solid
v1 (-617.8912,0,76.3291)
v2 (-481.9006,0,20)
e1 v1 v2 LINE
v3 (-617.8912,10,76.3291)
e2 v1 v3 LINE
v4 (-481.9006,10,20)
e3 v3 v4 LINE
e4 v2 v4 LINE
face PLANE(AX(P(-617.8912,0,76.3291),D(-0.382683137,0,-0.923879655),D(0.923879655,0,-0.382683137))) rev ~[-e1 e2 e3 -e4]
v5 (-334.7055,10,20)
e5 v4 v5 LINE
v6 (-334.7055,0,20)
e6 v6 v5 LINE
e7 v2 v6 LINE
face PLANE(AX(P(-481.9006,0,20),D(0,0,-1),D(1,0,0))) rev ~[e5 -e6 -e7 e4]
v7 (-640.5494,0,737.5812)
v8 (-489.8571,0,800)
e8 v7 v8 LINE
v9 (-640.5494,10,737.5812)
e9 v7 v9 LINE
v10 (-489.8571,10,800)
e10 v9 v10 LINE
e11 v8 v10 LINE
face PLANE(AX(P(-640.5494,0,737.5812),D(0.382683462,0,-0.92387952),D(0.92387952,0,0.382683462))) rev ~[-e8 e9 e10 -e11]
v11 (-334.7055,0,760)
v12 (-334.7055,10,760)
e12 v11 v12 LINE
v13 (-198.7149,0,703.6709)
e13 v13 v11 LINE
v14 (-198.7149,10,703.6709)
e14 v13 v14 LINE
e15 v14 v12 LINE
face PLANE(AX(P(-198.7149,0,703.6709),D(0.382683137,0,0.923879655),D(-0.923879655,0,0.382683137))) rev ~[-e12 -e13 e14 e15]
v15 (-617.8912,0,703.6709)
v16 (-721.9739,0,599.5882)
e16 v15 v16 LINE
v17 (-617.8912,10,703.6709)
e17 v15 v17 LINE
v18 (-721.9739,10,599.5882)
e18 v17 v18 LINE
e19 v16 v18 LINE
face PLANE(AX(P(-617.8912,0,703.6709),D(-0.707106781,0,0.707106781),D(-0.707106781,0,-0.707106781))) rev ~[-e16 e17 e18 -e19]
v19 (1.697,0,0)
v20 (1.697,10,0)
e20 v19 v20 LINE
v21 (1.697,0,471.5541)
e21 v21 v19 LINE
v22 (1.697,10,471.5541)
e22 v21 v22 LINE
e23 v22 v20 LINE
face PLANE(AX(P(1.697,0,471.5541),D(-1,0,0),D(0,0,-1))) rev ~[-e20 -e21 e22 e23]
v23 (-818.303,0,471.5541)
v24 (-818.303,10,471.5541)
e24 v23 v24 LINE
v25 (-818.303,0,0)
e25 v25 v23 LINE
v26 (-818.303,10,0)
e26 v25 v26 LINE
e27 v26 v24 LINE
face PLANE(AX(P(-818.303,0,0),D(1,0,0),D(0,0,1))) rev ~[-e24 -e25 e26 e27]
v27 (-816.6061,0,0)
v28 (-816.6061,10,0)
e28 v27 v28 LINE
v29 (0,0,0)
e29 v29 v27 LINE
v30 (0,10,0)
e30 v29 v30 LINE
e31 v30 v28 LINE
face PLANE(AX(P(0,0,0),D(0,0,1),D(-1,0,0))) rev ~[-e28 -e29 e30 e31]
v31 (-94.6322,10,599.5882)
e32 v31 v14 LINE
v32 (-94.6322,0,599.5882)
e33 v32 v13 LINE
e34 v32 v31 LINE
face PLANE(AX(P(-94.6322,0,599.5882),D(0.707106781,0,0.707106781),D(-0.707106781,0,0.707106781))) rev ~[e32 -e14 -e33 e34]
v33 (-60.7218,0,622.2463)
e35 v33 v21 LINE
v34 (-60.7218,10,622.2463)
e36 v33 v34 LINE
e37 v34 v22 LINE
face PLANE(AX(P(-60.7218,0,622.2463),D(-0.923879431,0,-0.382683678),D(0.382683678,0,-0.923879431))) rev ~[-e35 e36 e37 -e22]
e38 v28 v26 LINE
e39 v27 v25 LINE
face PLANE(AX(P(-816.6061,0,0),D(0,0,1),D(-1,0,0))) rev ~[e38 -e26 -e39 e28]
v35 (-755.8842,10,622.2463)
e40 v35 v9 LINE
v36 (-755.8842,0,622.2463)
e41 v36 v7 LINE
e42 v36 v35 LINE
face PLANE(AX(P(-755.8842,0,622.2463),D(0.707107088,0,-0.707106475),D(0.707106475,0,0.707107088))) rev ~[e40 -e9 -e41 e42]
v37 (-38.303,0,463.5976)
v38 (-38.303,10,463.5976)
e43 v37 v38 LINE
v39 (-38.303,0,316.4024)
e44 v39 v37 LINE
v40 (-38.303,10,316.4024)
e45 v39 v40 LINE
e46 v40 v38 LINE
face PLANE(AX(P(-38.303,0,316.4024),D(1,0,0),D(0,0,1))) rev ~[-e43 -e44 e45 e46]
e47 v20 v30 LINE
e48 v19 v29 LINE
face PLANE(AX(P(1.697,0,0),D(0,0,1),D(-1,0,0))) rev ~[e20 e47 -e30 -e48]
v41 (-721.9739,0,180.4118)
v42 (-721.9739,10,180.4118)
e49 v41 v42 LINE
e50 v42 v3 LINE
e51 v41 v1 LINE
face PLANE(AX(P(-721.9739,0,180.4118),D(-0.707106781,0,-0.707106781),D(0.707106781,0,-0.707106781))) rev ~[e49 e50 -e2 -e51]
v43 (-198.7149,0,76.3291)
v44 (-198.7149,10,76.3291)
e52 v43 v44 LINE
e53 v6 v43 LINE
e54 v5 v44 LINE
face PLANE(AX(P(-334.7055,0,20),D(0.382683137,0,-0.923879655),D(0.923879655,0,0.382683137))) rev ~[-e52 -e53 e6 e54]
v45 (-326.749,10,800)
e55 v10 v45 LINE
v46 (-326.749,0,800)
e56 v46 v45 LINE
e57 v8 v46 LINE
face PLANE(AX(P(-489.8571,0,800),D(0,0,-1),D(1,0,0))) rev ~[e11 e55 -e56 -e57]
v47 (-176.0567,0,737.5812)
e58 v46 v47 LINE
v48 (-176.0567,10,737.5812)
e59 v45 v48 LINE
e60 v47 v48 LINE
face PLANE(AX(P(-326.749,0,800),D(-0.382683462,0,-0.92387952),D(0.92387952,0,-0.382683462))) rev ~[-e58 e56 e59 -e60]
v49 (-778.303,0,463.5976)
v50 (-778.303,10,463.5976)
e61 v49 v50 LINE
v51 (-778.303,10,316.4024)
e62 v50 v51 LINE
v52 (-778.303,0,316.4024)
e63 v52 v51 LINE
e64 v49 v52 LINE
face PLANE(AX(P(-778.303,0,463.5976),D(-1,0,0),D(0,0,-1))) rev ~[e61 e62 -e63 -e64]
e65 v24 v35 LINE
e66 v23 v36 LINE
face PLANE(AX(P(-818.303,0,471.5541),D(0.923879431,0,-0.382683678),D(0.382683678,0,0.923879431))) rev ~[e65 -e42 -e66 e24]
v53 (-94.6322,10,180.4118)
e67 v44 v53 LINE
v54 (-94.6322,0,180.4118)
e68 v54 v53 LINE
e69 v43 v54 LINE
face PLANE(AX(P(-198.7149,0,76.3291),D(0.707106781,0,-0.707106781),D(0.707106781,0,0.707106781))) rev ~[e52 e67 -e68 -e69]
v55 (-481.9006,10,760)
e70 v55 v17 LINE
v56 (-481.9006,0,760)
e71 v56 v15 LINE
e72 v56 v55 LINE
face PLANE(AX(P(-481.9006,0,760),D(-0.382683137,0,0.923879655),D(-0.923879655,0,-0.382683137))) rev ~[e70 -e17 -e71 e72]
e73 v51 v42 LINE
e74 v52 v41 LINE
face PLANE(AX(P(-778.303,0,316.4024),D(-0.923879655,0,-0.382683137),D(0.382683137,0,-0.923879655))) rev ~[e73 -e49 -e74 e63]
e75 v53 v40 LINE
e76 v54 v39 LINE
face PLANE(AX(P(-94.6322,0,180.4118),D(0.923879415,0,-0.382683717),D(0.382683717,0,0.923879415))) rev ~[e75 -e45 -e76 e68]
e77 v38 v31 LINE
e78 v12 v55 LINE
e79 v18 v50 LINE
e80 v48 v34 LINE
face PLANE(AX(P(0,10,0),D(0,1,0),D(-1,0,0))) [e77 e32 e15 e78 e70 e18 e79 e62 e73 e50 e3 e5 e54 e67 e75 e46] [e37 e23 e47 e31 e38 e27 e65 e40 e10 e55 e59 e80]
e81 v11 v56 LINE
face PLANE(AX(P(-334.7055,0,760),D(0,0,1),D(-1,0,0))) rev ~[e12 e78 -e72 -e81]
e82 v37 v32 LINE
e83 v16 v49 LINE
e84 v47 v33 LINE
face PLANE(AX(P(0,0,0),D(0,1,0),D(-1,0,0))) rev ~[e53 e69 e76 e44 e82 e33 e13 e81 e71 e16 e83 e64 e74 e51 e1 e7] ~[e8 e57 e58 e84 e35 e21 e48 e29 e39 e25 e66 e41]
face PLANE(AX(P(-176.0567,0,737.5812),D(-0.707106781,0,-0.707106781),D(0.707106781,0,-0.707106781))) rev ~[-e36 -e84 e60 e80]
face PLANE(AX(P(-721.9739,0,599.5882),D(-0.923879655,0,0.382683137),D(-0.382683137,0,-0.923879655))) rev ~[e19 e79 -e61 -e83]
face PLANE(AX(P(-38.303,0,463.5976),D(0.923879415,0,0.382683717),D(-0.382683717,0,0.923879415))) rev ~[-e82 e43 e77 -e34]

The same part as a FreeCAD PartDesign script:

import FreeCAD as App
import Part
import Sketcher

V = App.Vector
Q = App.Units.Quantity

doc = App.newDocument("Part")
body = doc.addObject("PartDesign::Body", "Body")

# Sketch on XZ plane
sketch1 = body.newObject("Sketcher::SketchObject", "Sketch")
sketch1.AttachmentSupport = (doc.getObject("XZ_Plane"), [""])
sketch1.MapMode = "FlatFace"
sketch1.addGeometry([
    Part.LineSegment(V(-490, 800, 0), V(-327, 800, 0)),  # 0
    Part.LineSegment(V(-327, 800, 0), V(-176, 738, 0)),  # 1
    Part.LineSegment(V(-176, 738, 0), V(-61, 622, 0)),  # 2
    Part.LineSegment(V(-61, 622, 0), V(2, 472, 0)),  # 3
    Part.LineSegment(V(2, 472, 0), V(2, 0, 0)),  # 4
    Part.LineSegment(V(2, 0, 0), V(-818, 0, 0)),  # 5
    Part.LineSegment(V(-818, 0, 0), V(-818, 472, 0)),  # 6
    Part.LineSegment(V(-818, 472, 0), V(-756, 622, 0)),  # 7
    Part.LineSegment(V(-756, 622, 0), V(-641, 738, 0)),  # 8
    Part.LineSegment(V(-641, 738, 0), V(-490, 800, 0)),  # 9
    Part.LineSegment(V(-722, 180, 0), V(-618, 76, 0)),  # 10
    Part.LineSegment(V(-618, 76, 0), V(-482, 20, 0)),  # 11
    Part.LineSegment(V(-482, 20, 0), V(-335, 20, 0)),  # 12
    Part.LineSegment(V(-335, 20, 0), V(-199, 76, 0)),  # 13
    Part.LineSegment(V(-199, 76, 0), V(-95, 180, 0)),  # 14
    Part.LineSegment(V(-95, 180, 0), V(-38, 316, 0)),  # 15
    Part.LineSegment(V(-38, 316, 0), V(-38, 464, 0)),  # 16
    Part.LineSegment(V(-38, 464, 0), V(-95, 600, 0)),  # 17
    Part.LineSegment(V(-95, 600, 0), V(-199, 704, 0)),  # 18
    Part.LineSegment(V(-199, 704, 0), V(-335, 760, 0)),  # 19
    Part.LineSegment(V(-335, 760, 0), V(-482, 760, 0)),  # 20
    Part.LineSegment(V(-482, 760, 0), V(-618, 704, 0)),  # 21
    Part.LineSegment(V(-618, 704, 0), V(-722, 600, 0)),  # 22
    Part.LineSegment(V(-722, 600, 0), V(-778, 464, 0)),  # 23
    Part.LineSegment(V(-778, 464, 0), V(-778, 316, 0)),  # 24
    Part.LineSegment(V(-778, 316, 0), V(-722, 180, 0)),  # 25
], False)
sketch1.addConstraint([
    Sketcher.Constraint("Coincident", 0, 2, 1, 1),
    Sketcher.Constraint("Coincident", 1, 2, 2, 1),
    Sketcher.Constraint("Coincident", 2, 2, 3, 1),
    Sketcher.Constraint("Coincident", 3, 2, 4, 1),
    Sketcher.Constraint("Coincident", 4, 2, 5, 1),
    Sketcher.Constraint("Coincident", 5, 2, 6, 1),
    Sketcher.Constraint("Coincident", 6, 2, 7, 1),
    Sketcher.Constraint("Coincident", 7, 2, 8, 1),
    Sketcher.Constraint("Coincident", 8, 2, 9, 1),
    Sketcher.Constraint("Coincident", 9, 2, 0, 1),
    Sketcher.Constraint("Coincident", 10, 2, 11, 1),
    Sketcher.Constraint("Coincident", 11, 2, 12, 1),
    Sketcher.Constraint("Coincident", 12, 2, 13, 1),
    Sketcher.Constraint("Coincident", 13, 2, 14, 1),
    Sketcher.Constraint("Coincident", 14, 2, 15, 1),
    Sketcher.Constraint("Coincident", 15, 2, 16, 1),
    Sketcher.Constraint("Coincident", 16, 2, 17, 1),
    Sketcher.Constraint("Coincident", 17, 2, 18, 1),
    Sketcher.Constraint("Coincident", 18, 2, 19, 1),
    Sketcher.Constraint("Coincident", 19, 2, 20, 1),
    Sketcher.Constraint("Coincident", 20, 2, 21, 1),
    Sketcher.Constraint("Coincident", 21, 2, 22, 1),
    Sketcher.Constraint("Coincident", 22, 2, 23, 1),
    Sketcher.Constraint("Coincident", 23, 2, 24, 1),
    Sketcher.Constraint("Coincident", 24, 2, 25, 1),
    Sketcher.Constraint("Coincident", 25, 2, 10, 1),
    Sketcher.Constraint("Horizontal", 0),
    Sketcher.Constraint("Vertical", 4),
    Sketcher.Constraint("Horizontal", 5),
    Sketcher.Constraint("Vertical", 6),
    Sketcher.Constraint("Horizontal", 12),
    Sketcher.Constraint("Vertical", 16),
    Sketcher.Constraint("Horizontal", 20),
    Sketcher.Constraint("Vertical", 24),
    Sketcher.Constraint("PointOnObject", 4, 2, -1),
    Sketcher.Constraint("Perpendicular", 1, 7),
    Sketcher.Constraint("Perpendicular", 2, 8),
    Sketcher.Constraint("Perpendicular", 3, 9),
    Sketcher.Constraint("Perpendicular", 8, 10),
    Sketcher.Constraint("Perpendicular", 7, 11),
    Sketcher.Constraint("Parallel", 9, 13),
    Sketcher.Constraint("Perpendicular", 10, 14),
    Sketcher.Constraint("Perpendicular", 11, 15),
    Sketcher.Constraint("Perpendicular", 13, 17),
    Sketcher.Constraint("Perpendicular", 14, 18),
    Sketcher.Constraint("Perpendicular", 15, 19),
    Sketcher.Constraint("Perpendicular", 17, 21),
    Sketcher.Constraint("Perpendicular", 18, 22),
    Sketcher.Constraint("Perpendicular", 19, 23),
    Sketcher.Constraint("Perpendicular", 21, 25),
    Sketcher.Constraint("Horizontal", 3, 2, 6, 2),
    Sketcher.Constraint("Horizontal", 2, 2, 7, 2),
    Sketcher.Constraint("Horizontal", 1, 2, 8, 2),
    Sketcher.Constraint("Horizontal", 10, 2, 13, 2),
    Sketcher.Constraint("Horizontal", 18, 2, 21, 2),
    Sketcher.Constraint("Horizontal", 17, 2, 22, 2),
    Sketcher.Constraint("Horizontal", 16, 2, 23, 2),
    Sketcher.Constraint("Horizontal", 15, 2, 24, 2),
    Sketcher.Constraint("Horizontal", 14, 2, 25, 2),
    Sketcher.Constraint("Vertical", 14, 2, 17, 2),
    Sketcher.Constraint("Vertical", 13, 2, 18, 2),
    Sketcher.Constraint("Vertical", 12, 2, 19, 2),
    Sketcher.Constraint("Vertical", 11, 2, 20, 2),
    Sketcher.Constraint("Vertical", 10, 2, 21, 2),
    Sketcher.Constraint("Equal", 20, 16),
    Sketcher.Constraint("Equal", 1, 2),
    Sketcher.Constraint("Equal", 2, 3),
    Sketcher.Constraint("Equal", 10, 11),
    Sketcher.Constraint("Equal", 14, 15),
    Sketcher.Constraint("DistanceX", 5, 2, 5, 1, Q("820 mm")),
    Sketcher.Constraint("DistanceY", -1, 1, 0, 2, Q("800 mm")),
    Sketcher.Constraint("DistanceY", -1, 1, 11, 2, Q("20 mm")),
    Sketcher.Constraint("DistanceY", -1, 1, 19, 2, Q("760 mm")),
    Sketcher.Constraint("Angle", 1, Q("-22.5 deg")),
    Sketcher.Constraint("DistanceX", 15, 2, 3, 2, Q("40 mm")),
    Sketcher.Constraint("DistanceY", 4, 2, 4, 1, Q("471.554 mm")),
    Sketcher.Constraint("DistanceX", -1, 1, 3, 2, Q("1.697 mm")),
    Sketcher.Constraint("DistanceX", 13, 2, 4, 2, Q("200.412 mm")),
])
pad1 = body.newObject("PartDesign::Pad", "Pad")
pad1.Profile = sketch1
pad1.Length = 10
pad1.Reversed = True

doc.recompute()
